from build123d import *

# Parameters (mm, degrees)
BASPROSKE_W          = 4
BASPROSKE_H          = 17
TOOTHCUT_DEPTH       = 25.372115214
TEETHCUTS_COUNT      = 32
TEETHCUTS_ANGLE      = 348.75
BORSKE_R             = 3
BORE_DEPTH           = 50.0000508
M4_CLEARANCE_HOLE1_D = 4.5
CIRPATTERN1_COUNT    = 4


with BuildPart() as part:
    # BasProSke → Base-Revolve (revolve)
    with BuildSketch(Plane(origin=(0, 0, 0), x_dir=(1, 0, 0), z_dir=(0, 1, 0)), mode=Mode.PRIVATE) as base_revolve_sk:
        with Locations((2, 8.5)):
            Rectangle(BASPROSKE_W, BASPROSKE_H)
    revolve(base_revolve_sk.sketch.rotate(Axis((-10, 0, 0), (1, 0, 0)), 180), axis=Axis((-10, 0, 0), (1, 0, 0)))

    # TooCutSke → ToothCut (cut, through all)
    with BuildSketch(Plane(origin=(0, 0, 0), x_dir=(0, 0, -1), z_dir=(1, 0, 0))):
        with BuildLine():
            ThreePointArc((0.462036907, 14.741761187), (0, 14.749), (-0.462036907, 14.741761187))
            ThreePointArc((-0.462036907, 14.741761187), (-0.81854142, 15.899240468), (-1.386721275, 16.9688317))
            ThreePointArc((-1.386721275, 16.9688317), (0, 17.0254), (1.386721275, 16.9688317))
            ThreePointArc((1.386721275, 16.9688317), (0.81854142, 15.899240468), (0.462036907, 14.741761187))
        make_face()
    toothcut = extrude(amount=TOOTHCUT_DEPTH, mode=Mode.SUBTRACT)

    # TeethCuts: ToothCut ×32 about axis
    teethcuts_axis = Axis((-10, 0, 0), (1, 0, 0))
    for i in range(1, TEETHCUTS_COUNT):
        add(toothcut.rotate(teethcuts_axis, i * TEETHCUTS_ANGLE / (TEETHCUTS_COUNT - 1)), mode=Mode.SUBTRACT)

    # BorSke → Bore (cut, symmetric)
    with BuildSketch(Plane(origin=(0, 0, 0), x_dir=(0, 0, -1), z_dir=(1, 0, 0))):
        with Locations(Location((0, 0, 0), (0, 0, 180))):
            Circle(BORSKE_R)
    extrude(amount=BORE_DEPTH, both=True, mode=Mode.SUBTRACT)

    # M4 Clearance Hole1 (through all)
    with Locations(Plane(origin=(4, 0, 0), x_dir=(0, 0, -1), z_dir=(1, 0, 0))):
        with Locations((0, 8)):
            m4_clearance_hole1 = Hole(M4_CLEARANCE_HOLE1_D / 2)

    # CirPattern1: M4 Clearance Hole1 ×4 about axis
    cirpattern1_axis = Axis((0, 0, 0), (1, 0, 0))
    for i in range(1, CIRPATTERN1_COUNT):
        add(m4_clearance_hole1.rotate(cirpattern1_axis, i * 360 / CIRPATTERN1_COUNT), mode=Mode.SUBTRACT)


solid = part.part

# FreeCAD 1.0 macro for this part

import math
import FreeCAD as App
import Part
import Sketcher
from FreeCAD import Vector

doc = App.newDocument("Part")
params = doc.addObject("Spreadsheet::Sheet", "Params")
for row, (alias, value) in enumerate([
    ("sketch1_width", "4 mm"),
    ("sketch1_height", "17 mm"),
    ("revolution_angle", "360 deg"),
    ("sketch2_radius", "6.4 mm"),
    ("sketch3_diameter", "6 mm"),
    ("pocket2_length", "100.000102 mm"),
    ("sketch4_diameter", "4.5 mm"),
    ("hole_diameter", "4.5 mm"),
], start=1):
    params.set(f"A{row}", alias)
    params.set(f"B{row}", "=" + value)
    params.setAlias(f"B{row}", alias)

body = doc.addObject("PartDesign::Body", "Body")

sketch1 = body.newObject("Sketcher::SketchObject", "Sketch")
sketch1.AttachmentSupport = (doc.getObject("XZ_Plane"), [""])
sketch1.MapMode = "FlatFace"
sketch1.addGeometry([
    Part.LineSegment(Vector(0, -17, 0), Vector(0, 0, 0)),
    Part.LineSegment(Vector(0, 0, 0), Vector(4, 0, 0)),
    Part.LineSegment(Vector(4, 0, 0), Vector(4, -17, 0)),
    Part.LineSegment(Vector(4, -17, 0), Vector(0, -17, 0)),
], False)
sketch1.addConstraint([
    Sketcher.Constraint("Coincident", 0, 2, 1, 1),
    Sketcher.Constraint("Coincident", 1, 2, 2, 1),
    Sketcher.Constraint("Coincident", 2, 2, 3, 1),
    Sketcher.Constraint("Coincident", 3, 2, 0, 1),
    Sketcher.Constraint("Vertical", 0),
    Sketcher.Constraint("Horizontal", 1),
    Sketcher.Constraint("Vertical", 2),
    Sketcher.Constraint("Horizontal", 3),
    Sketcher.Constraint("Coincident", 0, 2, -1, 1),
    Sketcher.Constraint("DistanceX", 1, 1, 1, 2, 4.0),
    Sketcher.Constraint("DistanceY", 0, 1, 0, 2, 17.0),
])
sketch1.setExpression("Constraints[9]", "Params.sketch1_width")
sketch1.setExpression("Constraints[10]", "Params.sketch1_height")
revolution = body.newObject("PartDesign::Revolution", "Revolution")
revolution.Profile = sketch1
revolution.ReferenceAxis = (sketch1, ["H_Axis"])
revolution.setExpression("Angle", "Params.revolution_angle")

sketch2 = body.newObject("Sketcher::SketchObject", "Sketch001")
sketch2.AttachmentSupport = (doc.getObject("YZ_Plane"), [""])
sketch2.MapMode = "FlatFace"
sketch2.addGeometry([
    Part.ArcOfCircle(Part.Circle(Vector(0, 0, 0), Vector(0, 0, 1), 14.7), math.radians(-1.8), math.radians(1.8)),
    Part.ArcOfCircle(Part.Circle(Vector(13.4, -6.7, 0), Vector(0, 0, 1), 6.4), math.radians(57), math.radians(78)),
    Part.ArcOfCircle(Part.Circle(Vector(0, 0, 0), Vector(0, 0, 1), 17), math.radians(-4.67), math.radians(4.67)),
    Part.ArcOfCircle(Part.Circle(Vector(13.4, 6.7, 0), Vector(0, 0, 1), 6.4), math.radians(-78), math.radians(-57)),
], False)
sketch2.addConstraint([
    Sketcher.Constraint("Coincident", 0, 1, 1, 2),
    Sketcher.Constraint("Coincident", 1, 1, 2, 1),
    Sketcher.Constraint("Coincident", 2, 2, 3, 2),
    Sketcher.Constraint("Coincident", 3, 1, 0, 2),
    Sketcher.Constraint("Coincident", 0, 3, -1, 1),
    Sketcher.Constraint("Coincident", 2, 3, -1, 1),
    Sketcher.Constraint("Equal", 1, 3),
    Sketcher.Constraint("Symmetric", 1, 3, 3, 3, -1),
    Sketcher.Constraint("Radius", 1, 6.4),
    Sketcher.Constraint("Radius", 0, 14.749),
    Sketcher.Constraint("Radius", 2, 17.0254),
    Sketcher.Constraint("DistanceX", -1, 1, 1, 3, 13.44508),
    Sketcher.Constraint("DistanceX", -1, 1, 0, 1, 14.741761),
])
sketch2.setExpression("Constraints[8]", "Params.sketch2_radius")
pocket1 = body.newObject("PartDesign::Pocket", "Pocket")
pocket1.Profile = sketch2
pocket1.Type = "ThroughAll"
pocket1.Reversed = True
doc.recompute()

polarpattern = body.newObject("PartDesign::PolarPattern", "PolarPattern")
polarpattern.Originals = [pocket1]
polarpattern.Axis = (doc.getObject("X_Axis"), [""])
polarpattern.Angle = 360
polarpattern.Occurrences = 32
body.Tip = polarpattern

sketch3 = body.newObject("Sketcher::SketchObject", "Sketch002")
sketch3.AttachmentSupport = (doc.getObject("YZ_Plane"), [""])
sketch3.MapMode = "FlatFace"
sketch3.addGeometry(Part.Circle(Vector(0, 0, 0), Vector(0, 0, 1), 3), False)
sketch3.addConstraint([
    Sketcher.Constraint("Coincident", 0, 3, -1, 1),
    Sketcher.Constraint("Diameter", 0, 6.0),
])
sketch3.setExpression("Constraints[1]", "Params.sketch3_diameter")
pocket2 = body.newObject("PartDesign::Pocket", "Pocket001")
pocket2.Profile = sketch3
pocket2.setExpression("Length", "Params.pocket2_length")
pocket2.Midplane = True

sketch4 = body.newObject("Sketcher::SketchObject", "Sketch003")
sketch4.AttachmentSupport = (doc.getObject("YZ_Plane"), [""])
sketch4.MapMode = "FlatFace"
sketch4.AttachmentOffset = App.Placement(Vector(0, 0, 4), App.Rotation())
sketch4.addGeometry(Part.Circle(Vector(8, 0, 0), Vector(0, 0, 1), 2.2), False)
sketch4.addConstraint([
    Sketcher.Constraint("PointOnObject", 0, 3, -1),
    Sketcher.Constraint("Diameter", 0, 4.5),
    Sketcher.Constraint("DistanceX", -1, 1, 0, 3, 8.0),
])
sketch4.setExpression("Constraints[1]", "Params.sketch4_diameter")
doc.recompute()
hole = body.newObject("PartDesign::Hole", "Hole")
hole.Profile = sketch4
hole.ThreadType = "None"
hole.setExpression("Diameter", "Params.hole_diameter")
hole.DepthType = "ThroughAll"
doc.recompute()

polarpattern2 = body.newObject("PartDesign::PolarPattern", "PolarPattern001")
polarpattern2.Originals = [hole]
polarpattern2.Axis = (doc.getObject("X_Axis"), [""])
polarpattern2.Angle = 360
polarpattern2.Occurrences = 4
body.Tip = polarpattern2

doc.recompute()
